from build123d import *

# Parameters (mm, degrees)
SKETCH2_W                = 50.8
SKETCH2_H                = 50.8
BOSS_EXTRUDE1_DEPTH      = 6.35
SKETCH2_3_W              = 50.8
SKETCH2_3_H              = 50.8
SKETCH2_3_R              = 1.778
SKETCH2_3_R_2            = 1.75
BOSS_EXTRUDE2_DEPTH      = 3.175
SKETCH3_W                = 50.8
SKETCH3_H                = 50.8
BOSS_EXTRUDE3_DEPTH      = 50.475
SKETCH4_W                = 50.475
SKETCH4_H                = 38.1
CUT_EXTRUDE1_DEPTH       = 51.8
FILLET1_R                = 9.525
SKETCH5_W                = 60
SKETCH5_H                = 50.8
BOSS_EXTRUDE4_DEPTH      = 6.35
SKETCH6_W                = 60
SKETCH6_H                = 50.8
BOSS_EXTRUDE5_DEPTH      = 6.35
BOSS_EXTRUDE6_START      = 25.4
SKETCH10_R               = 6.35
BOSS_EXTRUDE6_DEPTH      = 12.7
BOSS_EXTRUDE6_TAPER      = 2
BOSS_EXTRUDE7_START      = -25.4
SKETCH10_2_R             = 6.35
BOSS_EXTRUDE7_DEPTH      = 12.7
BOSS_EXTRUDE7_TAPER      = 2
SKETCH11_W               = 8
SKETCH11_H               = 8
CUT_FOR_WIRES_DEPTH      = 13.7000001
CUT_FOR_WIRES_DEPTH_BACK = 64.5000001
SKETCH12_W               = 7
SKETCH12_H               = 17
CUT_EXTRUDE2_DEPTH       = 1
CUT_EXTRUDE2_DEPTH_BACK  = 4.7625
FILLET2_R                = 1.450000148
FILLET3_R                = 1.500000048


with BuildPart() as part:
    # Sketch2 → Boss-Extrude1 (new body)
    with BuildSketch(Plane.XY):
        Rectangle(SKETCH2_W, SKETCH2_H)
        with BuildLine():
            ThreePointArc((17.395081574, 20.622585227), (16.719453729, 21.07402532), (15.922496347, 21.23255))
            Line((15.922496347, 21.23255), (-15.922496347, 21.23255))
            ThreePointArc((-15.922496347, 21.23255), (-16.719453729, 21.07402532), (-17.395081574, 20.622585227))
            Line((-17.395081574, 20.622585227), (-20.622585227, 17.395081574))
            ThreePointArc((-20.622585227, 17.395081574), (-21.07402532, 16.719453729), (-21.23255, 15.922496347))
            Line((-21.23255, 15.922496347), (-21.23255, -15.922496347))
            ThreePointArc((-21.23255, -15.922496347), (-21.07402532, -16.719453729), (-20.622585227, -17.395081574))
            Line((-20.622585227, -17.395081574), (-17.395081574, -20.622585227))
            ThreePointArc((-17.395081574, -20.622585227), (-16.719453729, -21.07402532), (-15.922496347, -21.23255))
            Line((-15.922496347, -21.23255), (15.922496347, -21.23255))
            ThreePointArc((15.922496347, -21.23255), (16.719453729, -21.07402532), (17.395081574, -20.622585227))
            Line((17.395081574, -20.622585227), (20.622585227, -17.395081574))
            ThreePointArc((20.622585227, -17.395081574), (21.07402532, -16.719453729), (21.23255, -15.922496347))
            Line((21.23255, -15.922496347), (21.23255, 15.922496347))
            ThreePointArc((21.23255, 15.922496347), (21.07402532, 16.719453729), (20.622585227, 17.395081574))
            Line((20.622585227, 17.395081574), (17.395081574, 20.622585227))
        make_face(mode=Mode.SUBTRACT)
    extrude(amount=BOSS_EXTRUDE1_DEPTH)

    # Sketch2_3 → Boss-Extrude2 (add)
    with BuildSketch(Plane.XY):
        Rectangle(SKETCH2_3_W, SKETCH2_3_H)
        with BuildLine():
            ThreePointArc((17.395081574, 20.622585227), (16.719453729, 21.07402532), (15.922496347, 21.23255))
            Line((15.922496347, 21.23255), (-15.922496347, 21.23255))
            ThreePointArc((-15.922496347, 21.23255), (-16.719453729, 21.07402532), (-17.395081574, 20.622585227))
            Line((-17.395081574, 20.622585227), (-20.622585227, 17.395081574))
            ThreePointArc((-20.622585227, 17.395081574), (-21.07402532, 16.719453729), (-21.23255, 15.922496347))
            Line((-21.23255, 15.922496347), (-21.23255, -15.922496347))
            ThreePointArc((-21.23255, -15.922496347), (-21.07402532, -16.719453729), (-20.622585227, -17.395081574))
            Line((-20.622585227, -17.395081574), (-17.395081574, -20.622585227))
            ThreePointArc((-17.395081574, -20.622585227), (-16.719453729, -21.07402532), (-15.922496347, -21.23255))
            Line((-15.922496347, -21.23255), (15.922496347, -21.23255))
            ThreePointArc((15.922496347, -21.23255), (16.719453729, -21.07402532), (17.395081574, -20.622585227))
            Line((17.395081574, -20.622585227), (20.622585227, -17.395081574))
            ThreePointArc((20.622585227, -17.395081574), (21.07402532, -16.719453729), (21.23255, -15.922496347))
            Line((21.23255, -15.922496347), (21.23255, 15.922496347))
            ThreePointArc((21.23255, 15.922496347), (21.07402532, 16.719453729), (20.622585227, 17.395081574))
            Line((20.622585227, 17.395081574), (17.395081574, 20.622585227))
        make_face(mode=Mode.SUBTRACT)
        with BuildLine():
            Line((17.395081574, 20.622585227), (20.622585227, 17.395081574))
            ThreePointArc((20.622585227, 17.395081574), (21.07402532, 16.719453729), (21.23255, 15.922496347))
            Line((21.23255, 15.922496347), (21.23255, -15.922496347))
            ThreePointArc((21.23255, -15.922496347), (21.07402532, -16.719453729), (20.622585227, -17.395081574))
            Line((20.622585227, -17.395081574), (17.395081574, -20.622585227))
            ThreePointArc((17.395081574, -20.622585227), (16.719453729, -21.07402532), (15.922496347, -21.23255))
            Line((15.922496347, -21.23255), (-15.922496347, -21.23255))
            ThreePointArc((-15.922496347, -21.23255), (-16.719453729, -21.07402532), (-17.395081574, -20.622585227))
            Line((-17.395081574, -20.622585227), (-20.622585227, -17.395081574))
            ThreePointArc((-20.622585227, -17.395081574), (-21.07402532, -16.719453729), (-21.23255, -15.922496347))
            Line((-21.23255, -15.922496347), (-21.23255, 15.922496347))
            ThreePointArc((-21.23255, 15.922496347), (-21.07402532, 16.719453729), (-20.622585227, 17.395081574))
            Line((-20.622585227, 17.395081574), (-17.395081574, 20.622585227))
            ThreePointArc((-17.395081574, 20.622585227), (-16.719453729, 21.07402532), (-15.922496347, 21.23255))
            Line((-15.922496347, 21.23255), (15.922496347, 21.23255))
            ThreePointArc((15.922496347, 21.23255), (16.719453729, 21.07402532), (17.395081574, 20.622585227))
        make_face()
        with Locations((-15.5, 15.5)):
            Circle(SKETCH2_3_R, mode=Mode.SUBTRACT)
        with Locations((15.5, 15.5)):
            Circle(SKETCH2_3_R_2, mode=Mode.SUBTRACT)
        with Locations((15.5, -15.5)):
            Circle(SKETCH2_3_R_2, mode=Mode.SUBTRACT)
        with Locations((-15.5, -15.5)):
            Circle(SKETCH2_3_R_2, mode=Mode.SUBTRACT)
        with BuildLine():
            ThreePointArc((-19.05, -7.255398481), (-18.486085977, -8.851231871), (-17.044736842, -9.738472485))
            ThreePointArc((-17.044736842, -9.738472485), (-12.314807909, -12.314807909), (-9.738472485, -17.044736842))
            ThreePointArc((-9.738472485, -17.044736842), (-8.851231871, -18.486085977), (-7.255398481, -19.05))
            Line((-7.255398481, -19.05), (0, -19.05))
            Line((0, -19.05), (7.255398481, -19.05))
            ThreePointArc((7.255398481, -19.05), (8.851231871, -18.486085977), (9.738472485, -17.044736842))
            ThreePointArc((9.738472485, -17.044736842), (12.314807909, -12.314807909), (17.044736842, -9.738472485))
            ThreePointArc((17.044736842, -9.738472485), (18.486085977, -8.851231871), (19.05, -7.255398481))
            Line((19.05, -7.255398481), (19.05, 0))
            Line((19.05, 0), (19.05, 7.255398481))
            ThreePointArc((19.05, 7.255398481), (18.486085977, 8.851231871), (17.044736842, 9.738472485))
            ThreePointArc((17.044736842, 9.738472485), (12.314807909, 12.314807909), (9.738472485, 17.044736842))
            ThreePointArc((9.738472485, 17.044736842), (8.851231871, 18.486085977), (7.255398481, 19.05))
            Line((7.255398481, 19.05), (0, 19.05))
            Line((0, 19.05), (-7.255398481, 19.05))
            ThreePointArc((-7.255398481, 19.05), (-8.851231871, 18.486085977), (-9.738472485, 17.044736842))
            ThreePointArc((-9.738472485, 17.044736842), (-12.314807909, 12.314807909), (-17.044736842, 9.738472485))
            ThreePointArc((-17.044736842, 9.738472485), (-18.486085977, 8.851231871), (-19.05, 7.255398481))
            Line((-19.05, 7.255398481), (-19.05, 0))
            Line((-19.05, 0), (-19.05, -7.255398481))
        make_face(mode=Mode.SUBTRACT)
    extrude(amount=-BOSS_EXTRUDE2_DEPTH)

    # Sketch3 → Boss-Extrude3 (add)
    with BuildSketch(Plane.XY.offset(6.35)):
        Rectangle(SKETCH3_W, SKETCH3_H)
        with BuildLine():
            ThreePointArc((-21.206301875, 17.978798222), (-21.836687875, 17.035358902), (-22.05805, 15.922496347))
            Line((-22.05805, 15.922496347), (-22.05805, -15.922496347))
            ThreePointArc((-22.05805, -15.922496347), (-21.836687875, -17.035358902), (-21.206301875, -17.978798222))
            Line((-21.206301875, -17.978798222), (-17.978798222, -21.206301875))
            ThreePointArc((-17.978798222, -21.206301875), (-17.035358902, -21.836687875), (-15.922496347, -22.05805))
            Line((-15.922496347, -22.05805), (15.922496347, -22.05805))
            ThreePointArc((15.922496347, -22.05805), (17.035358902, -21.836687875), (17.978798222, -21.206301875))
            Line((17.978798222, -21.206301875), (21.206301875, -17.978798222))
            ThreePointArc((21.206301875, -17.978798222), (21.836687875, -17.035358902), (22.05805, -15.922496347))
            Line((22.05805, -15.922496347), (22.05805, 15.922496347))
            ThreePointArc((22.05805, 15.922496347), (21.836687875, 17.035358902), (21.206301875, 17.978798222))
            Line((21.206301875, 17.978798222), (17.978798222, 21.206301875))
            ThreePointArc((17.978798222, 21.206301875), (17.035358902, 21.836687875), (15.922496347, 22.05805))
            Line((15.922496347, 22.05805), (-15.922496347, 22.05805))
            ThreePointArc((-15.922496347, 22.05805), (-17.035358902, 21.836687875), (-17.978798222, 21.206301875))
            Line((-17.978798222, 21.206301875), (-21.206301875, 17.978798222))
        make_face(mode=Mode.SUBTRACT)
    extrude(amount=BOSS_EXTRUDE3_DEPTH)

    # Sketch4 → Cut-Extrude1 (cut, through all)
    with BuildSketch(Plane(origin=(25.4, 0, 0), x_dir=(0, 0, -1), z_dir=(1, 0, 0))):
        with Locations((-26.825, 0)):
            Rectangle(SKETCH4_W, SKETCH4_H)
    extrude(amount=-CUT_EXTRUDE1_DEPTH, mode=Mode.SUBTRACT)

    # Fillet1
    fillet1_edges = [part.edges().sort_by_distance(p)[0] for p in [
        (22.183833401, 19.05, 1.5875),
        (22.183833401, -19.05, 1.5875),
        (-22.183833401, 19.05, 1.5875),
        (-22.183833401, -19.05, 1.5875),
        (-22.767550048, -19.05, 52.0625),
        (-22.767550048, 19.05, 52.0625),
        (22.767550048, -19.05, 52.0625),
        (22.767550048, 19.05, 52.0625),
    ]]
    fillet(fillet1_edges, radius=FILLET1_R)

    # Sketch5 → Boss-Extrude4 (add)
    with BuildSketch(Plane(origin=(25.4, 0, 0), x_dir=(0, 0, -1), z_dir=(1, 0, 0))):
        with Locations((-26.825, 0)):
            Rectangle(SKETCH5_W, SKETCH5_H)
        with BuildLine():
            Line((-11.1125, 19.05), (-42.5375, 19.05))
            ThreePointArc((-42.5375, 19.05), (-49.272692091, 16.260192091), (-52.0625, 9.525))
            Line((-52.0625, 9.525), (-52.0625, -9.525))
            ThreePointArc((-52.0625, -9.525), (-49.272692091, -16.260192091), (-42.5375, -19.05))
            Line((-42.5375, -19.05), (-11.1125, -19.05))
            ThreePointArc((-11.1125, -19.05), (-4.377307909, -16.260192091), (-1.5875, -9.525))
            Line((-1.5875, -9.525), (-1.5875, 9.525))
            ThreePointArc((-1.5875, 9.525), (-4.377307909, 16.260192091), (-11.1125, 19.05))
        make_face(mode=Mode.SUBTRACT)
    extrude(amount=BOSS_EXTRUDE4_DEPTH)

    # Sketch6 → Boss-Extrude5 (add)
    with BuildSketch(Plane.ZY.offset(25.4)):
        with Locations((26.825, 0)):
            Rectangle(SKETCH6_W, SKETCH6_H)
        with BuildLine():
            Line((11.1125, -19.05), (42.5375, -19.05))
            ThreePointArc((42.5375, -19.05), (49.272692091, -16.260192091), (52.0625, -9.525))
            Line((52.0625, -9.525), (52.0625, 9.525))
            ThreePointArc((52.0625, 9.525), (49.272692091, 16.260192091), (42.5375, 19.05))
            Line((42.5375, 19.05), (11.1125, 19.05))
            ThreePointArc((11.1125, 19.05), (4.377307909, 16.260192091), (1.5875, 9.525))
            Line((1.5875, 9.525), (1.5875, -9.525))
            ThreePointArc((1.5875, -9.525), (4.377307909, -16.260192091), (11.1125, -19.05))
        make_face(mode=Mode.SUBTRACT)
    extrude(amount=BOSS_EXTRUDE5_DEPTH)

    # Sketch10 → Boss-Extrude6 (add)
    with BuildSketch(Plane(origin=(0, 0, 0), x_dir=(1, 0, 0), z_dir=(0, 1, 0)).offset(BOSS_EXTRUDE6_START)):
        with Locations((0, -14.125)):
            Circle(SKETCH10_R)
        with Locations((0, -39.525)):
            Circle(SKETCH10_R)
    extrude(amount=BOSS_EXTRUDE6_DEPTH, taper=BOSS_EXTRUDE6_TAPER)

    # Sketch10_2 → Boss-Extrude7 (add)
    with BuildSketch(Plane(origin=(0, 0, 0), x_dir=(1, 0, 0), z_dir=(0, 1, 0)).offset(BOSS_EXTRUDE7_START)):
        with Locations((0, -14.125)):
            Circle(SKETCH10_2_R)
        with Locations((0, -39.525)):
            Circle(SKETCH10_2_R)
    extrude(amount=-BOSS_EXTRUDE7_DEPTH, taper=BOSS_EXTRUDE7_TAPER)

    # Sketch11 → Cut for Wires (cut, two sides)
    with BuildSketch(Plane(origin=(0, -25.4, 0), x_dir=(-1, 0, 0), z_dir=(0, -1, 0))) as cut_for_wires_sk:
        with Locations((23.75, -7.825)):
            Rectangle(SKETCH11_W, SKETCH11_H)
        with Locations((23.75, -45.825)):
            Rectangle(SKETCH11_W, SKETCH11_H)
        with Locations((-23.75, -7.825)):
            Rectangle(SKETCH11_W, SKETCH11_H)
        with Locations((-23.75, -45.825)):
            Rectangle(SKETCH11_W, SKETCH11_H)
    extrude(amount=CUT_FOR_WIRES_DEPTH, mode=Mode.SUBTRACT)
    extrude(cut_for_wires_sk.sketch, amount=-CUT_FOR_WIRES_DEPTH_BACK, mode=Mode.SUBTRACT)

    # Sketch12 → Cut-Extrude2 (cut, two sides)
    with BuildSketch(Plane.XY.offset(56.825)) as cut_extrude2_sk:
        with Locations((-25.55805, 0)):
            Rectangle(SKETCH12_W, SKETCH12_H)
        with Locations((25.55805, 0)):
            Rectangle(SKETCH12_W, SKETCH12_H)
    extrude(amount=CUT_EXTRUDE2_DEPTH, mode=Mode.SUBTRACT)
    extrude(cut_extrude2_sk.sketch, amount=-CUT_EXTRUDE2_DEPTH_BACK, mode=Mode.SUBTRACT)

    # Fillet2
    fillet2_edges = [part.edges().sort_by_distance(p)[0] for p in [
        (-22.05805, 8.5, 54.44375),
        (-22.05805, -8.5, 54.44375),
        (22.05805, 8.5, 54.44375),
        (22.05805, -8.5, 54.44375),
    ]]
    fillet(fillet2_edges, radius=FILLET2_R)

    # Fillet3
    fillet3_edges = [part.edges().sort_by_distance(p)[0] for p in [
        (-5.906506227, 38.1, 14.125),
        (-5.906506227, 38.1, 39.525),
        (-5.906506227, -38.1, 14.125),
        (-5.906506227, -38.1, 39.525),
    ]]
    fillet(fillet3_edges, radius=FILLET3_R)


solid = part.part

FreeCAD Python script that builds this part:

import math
import FreeCAD as App
import Part
import Sketcher
Q = App.Units.Quantity


def edges_at(feature, points):
    """Names of the edges that pass closest to the given points."""
    edges = feature.Shape.Edges
    near = lambda p: min(range(len(edges)), key=lambda i: edges[i].distToShape(Part.Vertex(*p))[0])
    return sorted({f"Edge{near(p) + 1}" for p in points})


def add_polygon(sketch, points):
    """Adds a closed chain of lines whose ends are joined by coincident constraints."""
    first, n = sketch.GeometryCount, len(points)
    for a, b in zip(points, points[1:] + points[:1]):
        sketch.addGeometry(Part.LineSegment(App.Vector(*a, 0), App.Vector(*b, 0)), False)
    for i in range(n):
        sketch.addConstraint(Sketcher.Constraint("Coincident", first + i, 2, first + (i + 1) % n, 1))

doc = App.newDocument("Part")
body = doc.addObject("PartDesign::Body", "Body")

# Sketch on XY plane
sketch1 = body.newObject("Sketcher::SketchObject", "Sketch")
sketch1.AttachmentSupport = (doc.getObject("XY_Plane"), [""])
sketch1.MapMode = "FlatFace"
add_polygon(sketch1, [(-25.4, 25.4), (-25.4, -25.4), (25.4, -25.4), (25.4, 25.4)])  # lines 0-3
sketch1.addGeometry(Part.ArcOfCircle(Part.Circle(App.Vector(15.9, 19.1, 0), App.Vector(0, 0, 1), 2.1), math.radians(45), math.radians(90)), False)  # 4
sketch1.addGeometry(Part.LineSegment(App.Vector(17.4, 20.6, 0), App.Vector(20.6, 17.4, 0)), False)  # 5
sketch1.addGeometry(Part.ArcOfCircle(Part.Circle(App.Vector(19.1, 15.9, 0), App.Vector(0, 0, 1), 2.1), math.radians(0), math.radians(45)), False)  # 6
sketch1.addGeometry(Part.LineSegment(App.Vector(21.2, 15.9, 0), App.Vector(21.2, -15.9, 0)), False)  # 7
sketch1.addGeometry(Part.ArcOfCircle(Part.Circle(App.Vector(19.1, -15.9, 0), App.Vector(0, 0, 1), 2.1), math.radians(-45), math.radians(0)), False)  # 8
sketch1.addGeometry(Part.LineSegment(App.Vector(20.6, -17.4, 0), App.Vector(17.4, -20.6, 0)), False)  # 9
sketch1.addGeometry(Part.ArcOfCircle(Part.Circle(App.Vector(15.9, -19.1, 0), App.Vector(0, 0, 1), 2.1), math.radians(-90), math.radians(-45)), False)  # 10
sketch1.addGeometry(Part.LineSegment(App.Vector(15.9, -21.2, 0), App.Vector(-15.9, -21.2, 0)), False)  # 11
sketch1.addGeometry(Part.ArcOfCircle(Part.Circle(App.Vector(-15.9, -19.1, 0), App.Vector(0, 0, 1), 2.1), math.radians(-135), math.radians(-90)), False)  # 12
sketch1.addGeometry(Part.LineSegment(App.Vector(-17.4, -20.6, 0), App.Vector(-20.6, -17.4, 0)), False)  # 13
sketch1.addGeometry(Part.ArcOfCircle(Part.Circle(App.Vector(-19.1, -15.9, 0), App.Vector(0, 0, 1), 2.1), math.radians(-180), math.radians(-135)), False)  # 14
sketch1.addGeometry(Part.LineSegment(App.Vector(-21.2, -15.9, 0), App.Vector(-21.2, 15.9, 0)), False)  # 15
sketch1.addGeometry(Part.ArcOfCircle(Part.Circle(App.Vector(-19.1, 15.9, 0), App.Vector(0, 0, 1), 2.1), math.radians(135), math.radians(180)), False)  # 16
sketch1.addGeometry(Part.LineSegment(App.Vector(-20.6, 17.4, 0), App.Vector(-17.4, 20.6, 0)), False)  # 17
sketch1.addGeometry(Part.ArcOfCircle(Part.Circle(App.Vector(-15.9, 19.1, 0), App.Vector(0, 0, 1), 2.1), math.radians(90), math.radians(135)), False)  # 18
sketch1.addGeometry(Part.LineSegment(App.Vector(-15.9, 21.2, 0), App.Vector(15.9, 21.2, 0)), False)  # 19
sketch1.addConstraint([
    Sketcher.Constraint("Tangent", 4, 1, 5, 1),
    Sketcher.Constraint("Tangent", 5, 2, 6, 2),
    Sketcher.Constraint("Tangent", 6, 1, 7, 1),
    Sketcher.Constraint("Tangent", 7, 2, 8, 2),
    Sketcher.Constraint("Tangent", 8, 1, 9, 1),
    Sketcher.Constraint("Tangent", 9, 2, 10, 2),
    Sketcher.Constraint("Tangent", 10, 1, 11, 1),
    Sketcher.Constraint("Tangent", 11, 2, 12, 2),
    Sketcher.Constraint("Tangent", 12, 1, 13, 1),
    Sketcher.Constraint("Tangent", 13, 2, 14, 2),
    Sketcher.Constraint("Tangent", 14, 1, 15, 1),
    Sketcher.Constraint("Tangent", 15, 2, 16, 2),
    Sketcher.Constraint("Tangent", 16, 1, 17, 1),
    Sketcher.Constraint("Tangent", 17, 2, 18, 2),
    Sketcher.Constraint("Tangent", 18, 1, 19, 1),
    Sketcher.Constraint("Tangent", 19, 2, 4, 2),
    Sketcher.Constraint("Vertical", 0),
    Sketcher.Constraint("Horizontal", 1),
    Sketcher.Constraint("Vertical", 2),
    Sketcher.Constraint("Horizontal", 3),
    Sketcher.Constraint("Vertical", 7),
    Sketcher.Constraint("Horizontal", 11),
    Sketcher.Constraint("Vertical", 15),
    Sketcher.Constraint("Horizontal", 19),
    Sketcher.Constraint("Equal", 4, 6),
    Sketcher.Constraint("Equal", 6, 8),
    Sketcher.Constraint("Equal", 8, 10),
    Sketcher.Constraint("Equal", 10, 12),
    Sketcher.Constraint("Equal", 12, 14),
    Sketcher.Constraint("Equal", 14, 16),
    Sketcher.Constraint("Equal", 16, 18),
    Sketcher.Constraint("Symmetric", 4, 3, 12, 3, -1, 1),
    Sketcher.Constraint("Symmetric", 6, 3, 14, 3, -1, 1),
    Sketcher.Constraint("Symmetric", 0, 2, 2, 2, -1, 1),
    Sketcher.Constraint("Symmetric", 8, 1, 16, 1, -1, 1),
    Sketcher.Constraint("Symmetric", 9, 2, 12, 1, -2),
    Sketcher.Constraint("Perpendicular", 5, 9),
    Sketcher.Constraint("Equal", 3, 0),
    Sketcher.Constraint("Equal", 19, 7),
    Sketcher.Constraint("DistanceX", 1, 1, 1, 2, Q("50.8 mm")),
    Sketcher.Constraint("DistanceY", 10, 3, 4, 3, Q("38.3 mm")),
    Sketcher.Constraint("Radius", 4, Q("2.08255 mm")),
    Sketcher.Constraint("Distance", 5, Q("4.564379 mm")),
])
pad1 = body.newObject("PartDesign::Pad", "Pad")
pad1.Profile = sketch1
pad1.Length = 6.35

# Sketch on XY plane
sketch2 = body.newObject("Sketcher::SketchObject", "Sketch001")
sketch2.AttachmentSupport = (doc.getObject("XY_Plane"), [""])
sketch2.MapMode = "FlatFace"
add_polygon(sketch2, [(-25.4, 25.4), (-25.4, -25.4), (25.4, -25.4), (25.4, 25.4)])  # lines 0-3
sketch2.addGeometry(Part.Circle(App.Vector(-15.5, -15.5, 0), App.Vector(0, 0, 1), 1.8), False)  # 4
sketch2.addGeometry(Part.Circle(App.Vector(15.5, -15.5, 0), App.Vector(0, 0, 1), 1.8), False)  # 5
sketch2.addGeometry(Part.Circle(App.Vector(-15.5, 15.5, 0), App.Vector(0, 0, 1), 1.8), False)  # 6
sketch2.addGeometry(Part.ArcOfCircle(Part.Circle(App.Vector(-16.5, -7.3, 0), App.Vector(0, 0, 1), 2.5), math.radians(-180), math.radians(-102)), False)  # 7
sketch2.addGeometry(Part.LineSegment(App.Vector(-19.1, -7.3, 0), App.Vector(-19.1, 7.3, 0)), False)  # 8
sketch2.addGeometry(Part.ArcOfCircle(Part.Circle(App.Vector(-16.5, 7.3, 0), App.Vector(0, 0, 1), 2.5), math.radians(102), math.radians(180)), False)  # 9
sketch2.addGeometry(Part.ArcOfCircle(Part.Circle(App.Vector(-19, 19, 0), App.Vector(0, 0, 1), 9.5), math.radians(-78), math.radians(-12)), False)  # 10
sketch2.addGeometry(Part.ArcOfCircle(Part.Circle(App.Vector(-7.3, 16.5, 0), App.Vector(0, 0, 1), 2.5), math.radians(90), math.radians(168)), False)  # 11
sketch2.addGeometry(Part.LineSegment(App.Vector(-7.3, 19.1, 0), App.Vector(7.3, 19.1, 0)), False)  # 12
sketch2.addGeometry(Part.ArcOfCircle(Part.Circle(App.Vector(7.3, 16.5, 0), App.Vector(0, 0, 1), 2.5), math.radians(12), math.radians(90)), False)  # 13
sketch2.addGeometry(Part.ArcOfCircle(Part.Circle(App.Vector(19, 19, 0), App.Vector(0, 0, 1), 9.5), math.radians(-168), math.radians(-102)), False)  # 14
sketch2.addGeometry(Part.ArcOfCircle(Part.Circle(App.Vector(16.5, 7.3, 0), App.Vector(0, 0, 1), 2.5), math.radians(0), math.radians(78)), False)  # 15
sketch2.addGeometry(Part.LineSegment(App.Vector(19.1, 7.3, 0), App.Vector(19.1, -7.3, 0)), False)  # 16
sketch2.addGeometry(Part.ArcOfCircle(Part.Circle(App.Vector(16.5, -7.3, 0), App.Vector(0, 0, 1), 2.5), math.radians(-78), math.radians(0)), False)  # 17
sketch2.addGeometry(Part.ArcOfCircle(Part.Circle(App.Vector(19, -19, 0), App.Vector(0, 0, 1), 9.5), math.radians(102), math.radians(168)), False)  # 18
sketch2.addGeometry(Part.ArcOfCircle(Part.Circle(App.Vector(7.3, -16.5, 0), App.Vector(0, 0, 1), 2.5), math.radians(-90), math.radians(-12)), False)  # 19
sketch2.addGeometry(Part.LineSegment(App.Vector(7.3, -19.1, 0), App.Vector(-7.3, -19.1, 0)), False)  # 20
sketch2.addGeometry(Part.ArcOfCircle(Part.Circle(App.Vector(-7.3, -16.5, 0), App.Vector(0, 0, 1), 2.5), math.radians(-168), math.radians(-90)), False)  # 21
sketch2.addGeometry(Part.ArcOfCircle(Part.Circle(App.Vector(-19, -19, 0), App.Vector(0, 0, 1), 9.5), math.radians(12), math.radians(78)), False)  # 22
sketch2.addGeometry(Part.Circle(App.Vector(15.5, 15.5, 0), App.Vector(0, 0, 1), 1.8), False)  # 23
sketch2.addConstraint([
    Sketcher.Constraint("Tangent", 7, 1, 8, 1),
    Sketcher.Constraint("Tangent", 8, 2, 9, 2),
    Sketcher.Constraint("Tangent", 9, 1, 10, 1),
    Sketcher.Constraint("Tangent", 10, 2, 11, 2),
    Sketcher.Constraint("Tangent", 11, 1, 12, 1),
    Sketcher.Constraint("Tangent", 12, 2, 13, 2),
    Sketcher.Constraint("Tangent", 13, 1, 14, 1),
    Sketcher.Constraint("Tangent", 14, 2, 15, 2),
    Sketcher.Constraint("Tangent", 15, 1, 16, 1),
    Sketcher.Constraint("Tangent", 16, 2, 17, 2),
    Sketcher.Constraint("Tangent", 17, 1, 18, 1),
    Sketcher.Constraint("Tangent", 18, 2, 19, 2),
    Sketcher.Constraint("Tangent", 19, 1, 20, 1),
    Sketcher.Constraint("Tangent", 20, 2, 21, 2),
    Sketcher.Constraint("Tangent", 21, 1, 22, 1),
    Sketcher.Constraint("Tangent", 22, 2, 7, 2),
    Sketcher.Constraint("Vertical", 0),
    Sketcher.Constraint("Horizontal", 1),
    Sketcher.Constraint("Vertical", 2),
    Sketcher.Constraint("Horizontal", 3),
    Sketcher.Constraint("Vertical", 8),
    Sketcher.Constraint("Horizontal", 12),
    Sketcher.Constraint("Vertical", 16),
    Sketcher.Constraint("Horizontal", 20),
    Sketcher.Constraint("Equal", 4, 5),
    Sketcher.Constraint("Equal", 7, 9),
    Sketcher.Constraint("Equal", 9, 11),
    Sketcher.Constraint("Equal", 11, 13),
    Sketcher.Constraint("Equal", 10, 14),
    Sketcher.Constraint("Equal", 13, 15),
    Sketcher.Constraint("Equal", 15, 17),
    Sketcher.Constraint("Equal", 14, 18),
    Sketcher.Constraint("Equal", 17, 19),
    Sketcher.Constraint("Equal", 19, 21),
    Sketcher.Constraint("Equal", 18, 22),
    Sketcher.Constraint("Equal", 5, 23),
    Sketcher.Constraint("Symmetric", 5, 3, 6, 3, -1, 1),
    Sketcher.Constraint("Symmetric", 7, 3, 15, 3, -1, 1),
    Sketcher.Constraint("Symmetric", 10, 3, 18, 3, -1, 1),
    Sketcher.Constraint("Symmetric", 13, 3, 21, 3, -1, 1),
    Sketcher.Constraint("Symmetric", 4, 3, 23, 3, -1, 1),
    Sketcher.Constraint("Symmetric", 0, 2, 2, 2, -1, 1),
    Sketcher.Constraint("Symmetric", 4, 3, 5, 3, -2),
    Sketcher.Constraint("Symmetric", 10, 3, 14, 3, -2),
    Sketcher.Constraint("Horizontal", 14, 3, 11, 1),
    Sketcher.Constraint("Vertical", 22, 3, 7, 1),
    Sketcher.Constraint("Equal", 3, 0),
    Sketcher.Constraint("Equal", 20, 8),
    Sketcher.Constraint("Diameter", 4, Q("3.5 mm")),
    Sketcher.Constraint("Radius", 7, Q("2.54 mm")),
    Sketcher.Constraint("Diameter", 6, Q("3.556 mm")),
    Sketcher.Constraint("DistanceX", 1, 1, 1, 2, Q("50.8 mm")),
    Sketcher.Constraint("Radius", 10, Q("9.525 mm")),
    Sketcher.Constraint("DistanceX", 4, 3, 5, 3, Q("31 mm")),
    Sketcher.Constraint("DistanceY", 4, 3, 6, 3, Q("31 mm")),
    Sketcher.Constraint("DistanceX", 7, 3, -1, 1, Q("16.51 mm")),
])
pad2 = body.newObject("PartDesign::Pad", "Pad001")
pad2.Profile = sketch2
pad2.Length = 3.175
pad2.Reversed = True

# Sketch on XY plane
sketch3 = body.newObject("Sketcher::SketchObject", "Sketch002")
sketch3.AttachmentSupport = (doc.getObject("XY_Plane"), [""])
sketch3.MapMode = "FlatFace"
sketch3.AttachmentOffset = App.Placement(App.Vector(0, 0, 6.35), App.Rotation())
add_polygon(sketch3, [(-25.4, 25.4), (-25.4, -25.4), (25.4, -25.4), (25.4, 25.4)])  # lines 0-3
sketch3.addGeometry(Part.ArcOfCircle(Part.Circle(App.Vector(-19.2, 15.9, 0), App.Vector(0, 0, 1), 2.9), math.radians(135), math.radians(180)), False)  # 4
sketch3.addGeometry(Part.LineSegment(App.Vector(-21.2, 18, 0), App.Vector(-18, 21.2, 0)), False)  # 5
sketch3.addGeometry(Part.ArcOfCircle(Part.Circle(App.Vector(-15.9, 19.2, 0), App.Vector(0, 0, 1), 2.9), math.radians(90), math.radians(135)), False)  # 6
sketch3.addGeometry(Part.LineSegment(App.Vector(-15.9, 22.1, 0), App.Vector(15.9, 22.1, 0)), False)  # 7
sketch3.addGeometry(Part.ArcOfCircle(Part.Circle(App.Vector(15.9, 19.2, 0), App.Vector(0, 0, 1), 2.9), math.radians(45), math.radians(90)), False)  # 8
sketch3.addGeometry(Part.LineSegment(App.Vector(18, 21.2, 0), App.Vector(21.2, 18, 0)), False)  # 9
sketch3.addGeometry(Part.ArcOfCircle(Part.Circle(App.Vector(19.2, 15.9, 0), App.Vector(0, 0, 1), 2.9), math.radians(0), math.radians(45)), False)  # 10
sketch3.addGeometry(Part.LineSegment(App.Vector(22.1, 15.9, 0), App.Vector(22.1, -15.9, 0)), False)  # 11
sketch3.addGeometry(Part.ArcOfCircle(Part.Circle(App.Vector(19.2, -15.9, 0), App.Vector(0, 0, 1), 2.9), math.radians(-45), math.radians(0)), False)  # 12
sketch3.addGeometry(Part.LineSegment(App.Vector(21.2, -18, 0), App.Vector(18, -21.2, 0)), False)  # 13
sketch3.addGeometry(Part.ArcOfCircle(Part.Circle(App.Vector(15.9, -19.2, 0), App.Vector(0, 0, 1), 2.9), math.radians(-90), math.radians(-45)), False)  # 14
sketch3.addGeometry(Part.LineSegment(App.Vector(15.9, -22.1, 0), App.Vector(-15.9, -22.1, 0)), False)  # 15
sketch3.addGeometry(Part.ArcOfCircle(Part.Circle(App.Vector(-15.9, -19.2, 0), App.Vector(0, 0, 1), 2.9), math.radians(-135), math.radians(-90)), False)  # 16
sketch3.addGeometry(Part.LineSegment(App.Vector(-18, -21.2, 0), App.Vector(-21.2, -18, 0)), False)  # 17
sketch3.addGeometry(Part.ArcOfCircle(Part.Circle(App.Vector(-19.2, -15.9, 0), App.Vector(0, 0, 1), 2.9), math.radians(180), math.radians(225)), False)  # 18
sketch3.addGeometry(Part.LineSegment(App.Vector(-22.1, -15.9, 0), App.Vector(-22.1, 15.9, 0)), False)  # 19
sketch3.addConstraint([
    Sketcher.Constraint("Tangent", 4, 1, 5, 1),
    Sketcher.Constraint("Tangent", 5, 2, 6, 2),
    Sketcher.Constraint("Tangent", 6, 1, 7, 1),
    Sketcher.Constraint("Tangent", 7, 2, 8, 2),
    Sketcher.Constraint("Tangent", 8, 1, 9, 1),
    Sketcher.Constraint("Tangent", 9, 2, 10, 2),
    Sketcher.Constraint("Tangent", 10, 1, 11, 1),
    Sketcher.Constraint("Tangent", 11, 2, 12, 2),
    Sketcher.Constraint("Tangent", 12, 1, 13, 1),
    Sketcher.Constraint("Tangent", 13, 2, 14, 2),
    Sketcher.Constraint("Tangent", 14, 1, 15, 1),
    Sketcher.Constraint("Tangent", 15, 2, 16, 2),
    Sketcher.Constraint("Tangent", 16, 1, 17, 1),
    Sketcher.Constraint("Tangent", 17, 2, 18, 2),
    Sketcher.Constraint("Tangent", 18, 1, 19, 1),
    Sketcher.Constraint("Tangent", 19, 2, 4, 2),
    Sketcher.Constraint("Vertical", 0),
    Sketcher.Constraint("Horizontal", 1),
    Sketcher.Constraint("Vertical", 2),
    Sketcher.Constraint("Horizontal", 3),
    Sketcher.Constraint("Horizontal", 7),
    Sketcher.Constraint("Vertical", 11),
    Sketcher.Constraint("Horizontal", 15),
    Sketcher.Constraint("Vertical", 19),
    Sketcher.Constraint("Equal", 4, 6),
    Sketcher.Constraint("Equal", 6, 8),
    Sketcher.Constraint("Equal", 8, 10),
    Sketcher.Constraint("Equal", 10, 12),
    Sketcher.Constraint("Equal", 12, 14),
    Sketcher.Constraint("Equal", 14, 16),
    Sketcher.Constraint("Equal", 16, 18),
    Sketcher.Constraint("Symmetric", 4, 3, 12, 3, -1, 1),
    Sketcher.Constraint("Symmetric", 6, 3, 14, 3, -1, 1),
    Sketcher.Constraint("Symmetric", 0, 2, 2, 2, -1, 1),
    Sketcher.Constraint("Symmetric", 8, 1, 16, 1, -1, 1),
    Sketcher.Constraint("Symmetric", 5, 2, 8, 1, -2),
    Sketcher.Constraint("Perpendicular", 5, 9),
    Sketcher.Constraint("Equal", 3, 0),
    Sketcher.Constraint("Equal", 15, 11),
    Sketcher.Constraint("DistanceX", 1, 1, 1, 2, Q("50.8 mm")),
    Sketcher.Constraint("DistanceX", 4, 3, 10, 3, Q("38.3 mm")),
    Sketcher.Constraint("Radius", 4, Q("2.90805 mm")),
    Sketcher.Constraint("DistanceY", -1, 1, 4, 1, Q("17.978798 mm")),
])
pad3 = body.newObject("PartDesign::Pad", "Pad002")
pad3.Profile = sketch3
pad3.Length = 50.475

# Sketch on YZ plane
sketch4 = body.newObject("Sketcher::SketchObject", "Sketch003")
sketch4.AttachmentSupport = (doc.getObject("YZ_Plane"), [""])
sketch4.MapMode = "FlatFace"
sketch4.AttachmentOffset = App.Placement(App.Vector(0, 0, 25.4), App.Rotation())
add_polygon(sketch4, [(19, 52), (-19, 52), (-19, 2), (19, 2)])  # lines 0-3
sketch4.addConstraint([
    Sketcher.Constraint("Horizontal", 0),
    Sketcher.Constraint("Vertical", 1),
    Sketcher.Constraint("Horizontal", 2),
    Sketcher.Constraint("Vertical", 3),
    Sketcher.Constraint("DistanceX", 0, 2, 0, 1, Q("38.1 mm")),
    Sketcher.Constraint("DistanceY", 1, 2, 1, 1, Q("50.475 mm")),
    Sketcher.Constraint("DistanceX", 0, 2, -1, 1, Q("19.05 mm")),
    Sketcher.Constraint("DistanceY", -1, 1, 0, 2, Q("52.0625 mm")),
])
pocket1 = body.newObject("PartDesign::Pocket", "Pocket")
pocket1.Profile = sketch4
pocket1.Type = "ThroughAll"
doc.recompute()

fillet = body.newObject("PartDesign::Fillet", "Fillet")
fillet.Base = (pocket1, edges_at(pocket1, [
    (22.184, 19.05, 1.587),
    (22.184, -19.05, 1.587),
    (-22.184, 19.05, 1.587),
    (-22.184, -19.05, 1.587),
    (-22.768, -19.05, 52.062),
    (-22.768, 19.05, 52.062),
    (22.768, -19.05, 52.062),
    (22.768, 19.05, 52.062),
]))
fillet.Radius = 9.525

# Sketch on YZ plane
sketch5 = body.newObject("Sketcher::SketchObject", "Sketch004")
sketch5.AttachmentSupport = (doc.getObject("YZ_Plane"), [""])
sketch5.MapMode = "FlatFace"
sketch5.AttachmentOffset = App.Placement(App.Vector(0, 0, 25.4), App.Rotation())
add_polygon(sketch5, [(25, 57), (-25, 57), (-25, -3), (25, -3)])  # lines 0-3
sketch5.addGeometry(Part.LineSegment(App.Vector(19, 43, 0), App.Vector(19, 11, 0)), False)  # 4
sketch5.addGeometry(Part.ArcOfCircle(Part.Circle(App.Vector(10, 11, 0), App.Vector(0, 0, 1), 10), math.radians(-90), math.radians(0)), False)  # 5
sketch5.addGeometry(Part.LineSegment(App.Vector(10, 2, 0), App.Vector(-10, 2, 0)), False)  # 6
sketch5.addGeometry(Part.ArcOfCircle(Part.Circle(App.Vector(-10, 11, 0), App.Vector(0, 0, 1), 10), math.radians(180), math.radians(270)), False)  # 7
sketch5.addGeometry(Part.LineSegment(App.Vector(-19, 11, 0), App.Vector(-19, 43, 0)), False)  # 8
sketch5.addGeometry(Part.ArcOfCircle(Part.Circle(App.Vector(-10, 43, 0), App.Vector(0, 0, 1), 10), math.radians(90), math.radians(180)), False)  # 9
sketch5.addGeometry(Part.LineSegment(App.Vector(-10, 52, 0), App.Vector(10, 52, 0)), False)  # 10
sketch5.addGeometry(Part.ArcOfCircle(Part.Circle(App.Vector(10, 43, 0), App.Vector(0, 0, 1), 10), math.radians(0), math.radians(90)), False)  # 11
sketch5.addConstraint([
    Sketcher.Constraint("Tangent", 4, 2, 5, 2),
    Sketcher.Constraint("Tangent", 5, 1, 6, 1),
    Sketcher.Constraint("Tangent", 6, 2, 7, 2),
    Sketcher.Constraint("Tangent", 7, 1, 8, 1),
    Sketcher.Constraint("Tangent", 8, 2, 9, 2),
    Sketcher.Constraint("Tangent", 9, 1, 10, 1),
    Sketcher.Constraint("Tangent", 10, 2, 11, 2),
    Sketcher.Constraint("Tangent", 11, 1, 4, 1),
    Sketcher.Constraint("Horizontal", 0),
    Sketcher.Constraint("Vertical", 1),
    Sketcher.Constraint("Horizontal", 2),
    Sketcher.Constraint("Vertical", 3),
    Sketcher.Constraint("Vertical", 4),
    Sketcher.Constraint("Horizontal", 6),
    Sketcher.Constraint("Vertical", 8),
    Sketcher.Constraint("Horizontal", 10),
    Sketcher.Constraint("Equal", 5, 7),
    Sketcher.Constraint("Equal", 7, 9),
    Sketcher.Constraint("Equal", 9, 11),
    Sketcher.Constraint("DistanceY", 1, 2, 1, 1, Q("60 mm")),
    Sketcher.Constraint("DistanceX", 0, 2, 0, 1, Q("50.8 mm")),
    Sketcher.Constraint("Radius", 5, Q("9.525 mm")),
    Sketcher.Constraint("DistanceX", 6, 2, 6, 1, Q("19.05 mm")),
    Sketcher.Constraint("DistanceX", 0, 2, -1, 1, Q("25.4 mm")),
    Sketcher.Constraint("DistanceY", 4, 2, 4, 1, Q("31.425 mm")),
    Sketcher.Constraint("DistanceX", -1, 1, 4, 2, Q("19.05 mm")),
    Sketcher.Constraint("DistanceY", -1, 1, 0, 2, Q("56.825 mm")),
    Sketcher.Constraint("DistanceY", -1, 1, 5, 3, Q("11.1125 mm")),
])
pad4 = body.newObject("PartDesign::Pad", "Pad003")
pad4.Profile = sketch5
pad4.Length = 6.35

# Sketch on YZ plane
sketch6 = body.newObject("Sketcher::SketchObject", "Sketch005")
sketch6.AttachmentSupport = (doc.getObject("YZ_Plane"), [""])
sketch6.MapMode = "FlatFace"
sketch6.AttachmentOffset = App.Placement(App.Vector(0, 0, -25.4), App.Rotation())
add_polygon(sketch6, [(25, -3), (-25, -3), (-25, 57), (25, 57)])  # lines 0-3
sketch6.addGeometry(Part.LineSegment(App.Vector(-19, 43, 0), App.Vector(-19, 11, 0)), False)  # 4
sketch6.addGeometry(Part.ArcOfCircle(Part.Circle(App.Vector(-10, 11, 0), App.Vector(0, 0, 1), 10), math.radians(180), math.radians(270)), False)  # 5
sketch6.addGeometry(Part.LineSegment(App.Vector(-10, 2, 0), App.Vector(10, 2, 0)), False)  # 6
sketch6.addGeometry(Part.ArcOfCircle(Part.Circle(App.Vector(10, 11, 0), App.Vector(0, 0, 1), 10), math.radians(-90), math.radians(0)), False)  # 7
sketch6.addGeometry(Part.LineSegment(App.Vector(19, 11, 0), App.Vector(19, 43, 0)), False)  # 8
sketch6.addGeometry(Part.ArcOfCircle(Part.Circle(App.Vector(10, 43, 0), App.Vector(0, 0, 1), 10), math.radians(0), math.radians(90)), False)  # 9
sketch6.addGeometry(Part.LineSegment(App.Vector(10, 52, 0), App.Vector(-10, 52, 0)), False)  # 10
sketch6.addGeometry(Part.ArcOfCircle(Part.Circle(App.Vector(-10, 43, 0), App.Vector(0, 0, 1), 10), math.radians(90), math.radians(180)), False)  # 11
sketch6.addConstraint([
    Sketcher.Constraint("Tangent", 4, 2, 5, 1),
    Sketcher.Constraint("Tangent", 5, 2, 6, 1),
    Sketcher.Constraint("Tangent", 6, 2, 7, 1),
    Sketcher.Constraint("Tangent", 7, 2, 8, 1),
    Sketcher.Constraint("Tangent", 8, 2, 9, 1),
    Sketcher.Constraint("Tangent", 9, 2, 10, 1),
    Sketcher.Constraint("Tangent", 10, 2, 11, 1),
    Sketcher.Constraint("Tangent", 11, 2, 4, 1),
    Sketcher.Constraint("Horizontal", 0),
    Sketcher.Constraint("Vertical", 1),
    Sketcher.Constraint("Horizontal", 2),
    Sketcher.Constraint("Vertical", 3),
    Sketcher.Constraint("Vertical", 4),
    Sketcher.Constraint("Horizontal", 6),
    Sketcher.Constraint("Vertical", 8),
    Sketcher.Constraint("Horizontal", 10),
    Sketcher.Constraint("Equal", 5, 7),
    Sketcher.Constraint("Equal", 7, 9),
    Sketcher.Constraint("Equal", 9, 11),
    Sketcher.Constraint("DistanceY", 1, 1, 1, 2, Q("60 mm")),
    Sketcher.Constraint("DistanceX", 0, 2, 0, 1, Q("50.8 mm")),
    Sketcher.Constraint("Radius", 5, Q("9.525 mm")),
    Sketcher.Constraint("DistanceX", 6, 1, 6, 2, Q("19.05 mm")),
    Sketcher.Constraint("DistanceX", 0, 2, -1, 1, Q("25.4 mm")),
    Sketcher.Constraint("DistanceY", 4, 2, 4, 1, Q("31.425 mm")),
    Sketcher.Constraint("DistanceX", 4, 2, -1, 1, Q("19.05 mm")),
    Sketcher.Constraint("DistanceY", 0, 2, -1, 1, Q("3.175 mm")),
    Sketcher.Constraint("DistanceY", -1, 1, 5, 3, Q("11.1125 mm")),
])
pad5 = body.newObject("PartDesign::Pad", "Pad004")
pad5.Profile = sketch6
pad5.Length = 6.35
pad5.Reversed = True

# Sketch on XZ plane
sketch7 = body.newObject("Sketcher::SketchObject", "Sketch006")
sketch7.AttachmentSupport = (doc.getObject("XZ_Plane"), [""])
sketch7.MapMode = "FlatFace"
sketch7.AttachmentOffset = App.Placement(App.Vector(0, 0, -25.4), App.Rotation())
sketch7.addGeometry([
    Part.Circle(App.Vector(0, 14, 0), App.Vector(0, 0, 1), 6),
    Part.Circle(App.Vector(0, 40, 0), App.Vector(0, 0, 1), 6),
], False)
sketch7.addConstraint([
    Sketcher.Constraint("Equal", 0, 1),
    Sketcher.Constraint("PointOnObject", 0, 3, -2),
    Sketcher.Constraint("PointOnObject", 1, 3, -2),
    Sketcher.Constraint("Diameter", 0, Q("12.7 mm")),
    Sketcher.Constraint("DistanceY", 0, 3, 1, 3, Q("25.4 mm")),
    Sketcher.Constraint("DistanceY", -1, 1, 0, 3, Q("14.125 mm")),
])
pad6 = body.newObject("PartDesign::Pad", "Pad005")
pad6.Profile = sketch7
pad6.Length = 12.7
pad6.Reversed = True
pad6.TaperAngle = -2

# Sketch on XZ plane
sketch8 = body.newObject("Sketcher::SketchObject", "Sketch007")
sketch8.AttachmentSupport = (doc.getObject("XZ_Plane"), [""])
sketch8.MapMode = "FlatFace"
sketch8.AttachmentOffset = App.Placement(App.Vector(0, 0, 25.4), App.Rotation())
sketch8.addGeometry([
    Part.Circle(App.Vector(0, 14, 0), App.Vector(0, 0, 1), 6),
    Part.Circle(App.Vector(0, 40, 0), App.Vector(0, 0, 1), 6),
], False)
sketch8.addConstraint([
    Sketcher.Constraint("Equal", 0, 1),
    Sketcher.Constraint("PointOnObject", 0, 3, -2),
    Sketcher.Constraint("PointOnObject", 1, 3, -2),
    Sketcher.Constraint("Diameter", 0, Q("12.7 mm")),
    Sketcher.Constraint("DistanceY", 0, 3, 1, 3, Q("25.4 mm")),
    Sketcher.Constraint("DistanceY", -1, 1, 0, 3, Q("14.125 mm")),
])
pad7 = body.newObject("PartDesign::Pad", "Pad006")
pad7.Profile = sketch8
pad7.Length = 12.7
pad7.TaperAngle = -2

# Sketch on XZ plane
sketch9 = body.newObject("Sketcher::SketchObject", "Sketch008")
sketch9.AttachmentSupport = (doc.getObject("XZ_Plane"), [""])
sketch9.MapMode = "FlatFace"
sketch9.AttachmentOffset = App.Placement(App.Vector(0, 0, 25.4), App.Rotation())
add_polygon(sketch9, [(-20, 4), (-20, 12), (-28, 12), (-28, 4)])  # lines 0-3
add_polygon(sketch9, [(-20, 42), (-20, 50), (-28, 50), (-28, 42)])  # lines 4-7
add_polygon(sketch9, [(28, 4), (28, 12), (20, 12), (20, 4)])  # lines 8-11
add_polygon(sketch9, [(28, 42), (28, 50), (20, 50), (20, 42)])  # lines 12-15
sketch9.addConstraint([
    Sketcher.Constraint("Vertical", 0),
    Sketcher.Constraint("Horizontal", 1),
    Sketcher.Constraint("Vertical", 2),
    Sketcher.Constraint("Horizontal", 3),
    Sketcher.Constraint("Vertical", 4),
    Sketcher.Constraint("Horizontal", 5),
    Sketcher.Constraint("Vertical", 6),
    Sketcher.Constraint("Horizontal", 7),
    Sketcher.Constraint("Vertical", 8),
    Sketcher.Constraint("Horizontal", 9),
    Sketcher.Constraint("Vertical", 10),
    Sketcher.Constraint("Horizontal", 11),
    Sketcher.Constraint("Vertical", 12),
    Sketcher.Constraint("Horizontal", 13),
    Sketcher.Constraint("Vertical", 14),
    Sketcher.Constraint("Horizontal", 15),
    Sketcher.Constraint("Symmetric", 1, 2, 8, 2, -2),
    Sketcher.Constraint("Symmetric", 3, 2, 10, 2, -2),
    Sketcher.Constraint("Symmetric", 5, 2, 12, 2, -2),
    Sketcher.Constraint("Symmetric", 7, 2, 14, 2, -2),
    Sketcher.Constraint("Vertical", 3, 2, 4, 2),
    Sketcher.Constraint("Vertical", 2, 2, 5, 2),
    Sketcher.Constraint("Equal", 15, 0),
    Sketcher.Constraint("Equal", 2, 4),
    Sketcher.Constraint("DistanceX", 1, 2, 1, 1, Q("8 mm")),
    Sketcher.Constraint("DistanceY", 0, 2, 4, 2, Q("38 mm")),
    Sketcher.Constraint("DistanceX", 0, 2, 8, 2, Q("47.5 mm")),
    Sketcher.Constraint("DistanceY", -1, 1, 0, 2, Q("11.825 mm")),
])
pocket2 = body.newObject("PartDesign::Pocket", "Pocket001")
pocket2.Profile = sketch9
pocket2.Type = "ThroughAll"
pocket2.Midplane = True

# Sketch on XY plane
sketch10 = body.newObject("Sketcher::SketchObject", "Sketch009")
sketch10.AttachmentSupport = (doc.getObject("XY_Plane"), [""])
sketch10.MapMode = "FlatFace"
sketch10.AttachmentOffset = App.Placement(App.Vector(0, 0, 56.825), App.Rotation())
add_polygon(sketch10, [(-29, 8), (-29, -8), (-22, -8), (-22, 8)])  # lines 0-3
add_polygon(sketch10, [(22, 8), (22, -8), (29, -8), (29, 8)])  # lines 4-7
sketch10.addConstraint([
    Sketcher.Constraint("Vertical", 0),
    Sketcher.Constraint("Horizontal", 1),
    Sketcher.Constraint("Vertical", 2),
    Sketcher.Constraint("Horizontal", 3),
    Sketcher.Constraint("Vertical", 4),
    Sketcher.Constraint("Horizontal", 5),
    Sketcher.Constraint("Vertical", 6),
    Sketcher.Constraint("Horizontal", 7),
    Sketcher.Constraint("Symmetric", 2, 2, 4, 2, -1, 1),
    Sketcher.Constraint("Symmetric", 0, 2, 6, 2, -1, 1),
    Sketcher.Constraint("Horizontal", 1, 2, 4, 2),
    Sketcher.Constraint("DistanceX", 1, 1, 1, 2, Q("7 mm")),
    Sketcher.Constraint("DistanceY", 0, 2, 0, 1, Q("17 mm")),
    Sketcher.Constraint("DistanceX", 1, 2, 4, 2, Q("44.1161 mm")),
])
pocket3 = body.newObject("PartDesign::Pocket", "Pocket002")
pocket3.Profile = sketch10
pocket3.Type = "TwoLengths"
pocket3.Length = 1
pocket3.Length2 = 4.7625
pocket3.Reversed = True
doc.recompute()

fillet2 = body.newObject("PartDesign::Fillet", "Fillet001")
fillet2.Base = (pocket3, edges_at(pocket3, [
    (-22.058, 8.5, 54.444),
    (-22.058, -8.5, 54.444),
    (22.058, 8.5, 54.444),
    (22.058, -8.5, 54.444),
]))
fillet2.Radius = 1.45
doc.recompute()

fillet3 = body.newObject("PartDesign::Fillet", "Fillet002")
fillet3.Base = (fillet2, edges_at(fillet2, [
    (-5.907, 38.1, 14.125),
    (-5.907, 38.1, 39.525),
    (-5.907, -38.1, 14.125),
    (-5.907, -38.1, 39.525),
]))
fillet3.Radius = 1.5

doc.recompute()
